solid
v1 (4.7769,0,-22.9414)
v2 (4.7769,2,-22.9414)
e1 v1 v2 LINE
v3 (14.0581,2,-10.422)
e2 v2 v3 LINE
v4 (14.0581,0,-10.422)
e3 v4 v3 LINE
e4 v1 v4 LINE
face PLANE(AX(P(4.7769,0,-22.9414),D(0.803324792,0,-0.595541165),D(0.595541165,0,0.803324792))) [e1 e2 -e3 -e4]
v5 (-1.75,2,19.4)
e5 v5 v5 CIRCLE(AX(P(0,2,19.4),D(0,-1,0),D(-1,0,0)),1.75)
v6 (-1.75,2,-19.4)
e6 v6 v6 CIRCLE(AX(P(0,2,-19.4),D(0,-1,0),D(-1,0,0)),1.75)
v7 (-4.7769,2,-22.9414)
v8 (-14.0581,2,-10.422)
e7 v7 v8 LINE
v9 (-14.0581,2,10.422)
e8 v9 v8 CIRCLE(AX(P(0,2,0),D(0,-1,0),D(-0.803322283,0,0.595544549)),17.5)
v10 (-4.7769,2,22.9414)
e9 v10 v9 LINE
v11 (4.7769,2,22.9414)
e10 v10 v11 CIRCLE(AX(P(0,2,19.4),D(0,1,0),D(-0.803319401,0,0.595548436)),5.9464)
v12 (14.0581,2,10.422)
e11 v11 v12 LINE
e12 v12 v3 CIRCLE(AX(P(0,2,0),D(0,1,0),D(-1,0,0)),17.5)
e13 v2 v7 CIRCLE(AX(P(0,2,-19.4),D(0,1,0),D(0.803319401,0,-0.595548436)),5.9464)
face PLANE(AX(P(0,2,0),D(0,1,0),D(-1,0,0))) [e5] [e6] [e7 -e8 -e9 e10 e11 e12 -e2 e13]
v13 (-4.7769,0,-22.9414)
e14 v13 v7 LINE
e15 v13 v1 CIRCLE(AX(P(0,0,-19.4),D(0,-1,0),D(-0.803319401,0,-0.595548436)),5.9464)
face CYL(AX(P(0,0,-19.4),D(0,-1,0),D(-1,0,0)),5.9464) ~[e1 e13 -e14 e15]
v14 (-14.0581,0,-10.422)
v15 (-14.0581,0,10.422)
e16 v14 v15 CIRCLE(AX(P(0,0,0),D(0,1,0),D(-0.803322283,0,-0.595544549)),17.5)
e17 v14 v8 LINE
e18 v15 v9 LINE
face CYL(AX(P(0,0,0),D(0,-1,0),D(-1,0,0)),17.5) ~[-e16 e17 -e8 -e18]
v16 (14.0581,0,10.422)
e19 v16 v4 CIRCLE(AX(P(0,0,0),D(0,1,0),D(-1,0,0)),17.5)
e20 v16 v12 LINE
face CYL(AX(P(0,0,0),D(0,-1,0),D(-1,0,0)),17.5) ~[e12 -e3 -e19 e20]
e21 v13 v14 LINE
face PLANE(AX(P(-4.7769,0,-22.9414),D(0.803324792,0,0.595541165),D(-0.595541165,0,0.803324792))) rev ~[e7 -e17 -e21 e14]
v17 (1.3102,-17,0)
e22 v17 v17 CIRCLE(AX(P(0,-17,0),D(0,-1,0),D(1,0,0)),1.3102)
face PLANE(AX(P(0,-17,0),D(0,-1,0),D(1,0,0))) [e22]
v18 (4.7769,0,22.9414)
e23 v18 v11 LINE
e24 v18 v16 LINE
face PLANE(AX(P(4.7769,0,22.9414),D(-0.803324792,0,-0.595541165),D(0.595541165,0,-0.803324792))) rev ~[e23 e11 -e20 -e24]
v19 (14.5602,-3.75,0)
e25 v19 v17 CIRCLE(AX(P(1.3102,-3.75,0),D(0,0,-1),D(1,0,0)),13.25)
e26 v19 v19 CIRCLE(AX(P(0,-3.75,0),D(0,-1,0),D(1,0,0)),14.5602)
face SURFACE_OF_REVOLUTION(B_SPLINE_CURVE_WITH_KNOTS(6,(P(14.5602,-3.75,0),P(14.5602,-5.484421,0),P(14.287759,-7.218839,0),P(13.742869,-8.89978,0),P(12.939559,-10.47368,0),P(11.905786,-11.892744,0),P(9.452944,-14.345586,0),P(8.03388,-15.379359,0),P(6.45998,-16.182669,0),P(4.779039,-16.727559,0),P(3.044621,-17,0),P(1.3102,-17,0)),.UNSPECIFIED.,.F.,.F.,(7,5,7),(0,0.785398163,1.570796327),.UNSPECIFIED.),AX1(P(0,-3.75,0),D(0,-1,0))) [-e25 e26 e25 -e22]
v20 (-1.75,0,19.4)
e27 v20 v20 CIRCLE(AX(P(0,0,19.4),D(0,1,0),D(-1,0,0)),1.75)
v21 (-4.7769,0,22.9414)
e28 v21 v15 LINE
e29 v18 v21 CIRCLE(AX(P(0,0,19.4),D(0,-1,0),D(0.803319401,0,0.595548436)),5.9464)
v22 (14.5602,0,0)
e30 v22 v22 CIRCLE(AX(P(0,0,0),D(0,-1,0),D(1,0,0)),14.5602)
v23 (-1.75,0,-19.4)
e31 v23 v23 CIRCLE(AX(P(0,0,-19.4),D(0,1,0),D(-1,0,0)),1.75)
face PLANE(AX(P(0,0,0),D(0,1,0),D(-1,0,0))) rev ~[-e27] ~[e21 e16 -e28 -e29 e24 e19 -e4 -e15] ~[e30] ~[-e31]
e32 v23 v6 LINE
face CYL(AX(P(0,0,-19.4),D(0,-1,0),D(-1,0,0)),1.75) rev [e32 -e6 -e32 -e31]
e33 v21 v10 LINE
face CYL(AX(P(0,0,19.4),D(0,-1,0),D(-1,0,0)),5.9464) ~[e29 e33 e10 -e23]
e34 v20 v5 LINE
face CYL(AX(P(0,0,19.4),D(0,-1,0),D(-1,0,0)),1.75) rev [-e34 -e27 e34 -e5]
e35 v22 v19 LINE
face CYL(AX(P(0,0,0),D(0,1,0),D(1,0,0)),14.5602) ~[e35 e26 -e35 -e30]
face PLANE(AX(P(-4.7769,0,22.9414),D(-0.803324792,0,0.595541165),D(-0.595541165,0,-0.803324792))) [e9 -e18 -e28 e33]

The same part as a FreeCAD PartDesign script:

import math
import FreeCAD as App
import Part
import Sketcher
Q = App.Units.Quantity


def edges_at(feature, points):
    """Names of the edges that pass closest to the given points."""
    edges = feature.Shape.Edges
    near = lambda p: min(range(len(edges)), key=lambda i: edges[i].distToShape(Part.Vertex(*p))[0])
    return sorted({f"Edge{near(p) + 1}" for p in points})

doc = App.newDocument("Part")
body = doc.addObject("PartDesign::Body", "Body")

# Sketch on XZ plane
sketch1 = body.newObject("Sketcher::SketchObject", "Sketch")
sketch1.AttachmentSupport = (doc.getObject("XZ_Plane"), [""])
sketch1.MapMode = "FlatFace"
sketch1.addGeometry(Part.ArcOfCircle(Part.Circle(App.Vector(0, 0, 0), App.Vector(0, 0, 1), 17.5), math.radians(143.448538), math.radians(216.551462)), False)
sketch1.addGeometry(Part.LineSegment(App.Vector(-14.0581, 10.422, 0), App.Vector(-4.7769, 22.9414, 0)), False)
sketch1.addGeometry(Part.ArcOfCircle(Part.Circle(App.Vector(0, 19.4, 0), App.Vector(0, 0, 1), 5.9464), math.radians(36.551739), math.radians(143.448261)), False)
sketch1.addGeometry(Part.LineSegment(App.Vector(4.7769, 22.9414, 0), App.Vector(14.0581, 10.422, 0)), False)
sketch1.addGeometry(Part.ArcOfCircle(Part.Circle(App.Vector(0, 0, 0), App.Vector(0, 0, 1), 17.5), math.radians(-36.551462), math.radians(36.551462)), False)
sketch1.addGeometry(Part.LineSegment(App.Vector(14.0581, -10.422, 0), App.Vector(4.7769, -22.9414, 0)), False)
sketch1.addGeometry(Part.ArcOfCircle(Part.Circle(App.Vector(0, -19.4, 0), App.Vector(0, 0, 1), 5.9464), math.radians(-143.448261), math.radians(-36.551739)), False)
sketch1.addGeometry(Part.LineSegment(App.Vector(-4.7769, -22.9414, 0), App.Vector(-14.0581, -10.422, 0)), False)
sketch1.addGeometry(Part.Circle(App.Vector(0, -19.4, 0), App.Vector(0, 0, 1), 1.75), False)
sketch1.addGeometry(Part.Circle(App.Vector(0, 19.4, 0), App.Vector(0, 0, 1), 1.75), False)
sketch1.addConstraint(Sketcher.Constraint("Tangent", 0, 1, 1, 1))
sketch1.addConstraint(Sketcher.Constraint("Tangent", 1, 2, 2, 2))
sketch1.addConstraint(Sketcher.Constraint("Tangent", 2, 1, 3, 1))
sketch1.addConstraint(Sketcher.Constraint("Tangent", 3, 2, 4, 2))
sketch1.addConstraint(Sketcher.Constraint("Tangent", 4, 1, 5, 1))
sketch1.addConstraint(Sketcher.Constraint("Tangent", 5, 2, 6, 2))
sketch1.addConstraint(Sketcher.Constraint("Tangent", 6, 1, 7, 1))
sketch1.addConstraint(Sketcher.Constraint("Tangent", 7, 2, 0, 2))
sketch1.addConstraint(Sketcher.Constraint("Coincident", 0, 3, -1, 1))
sketch1.addConstraint(Sketcher.Constraint("Coincident", 4, 3, -1, 1))
sketch1.addConstraint(Sketcher.Constraint("Coincident", 8, 3, 6, 3))
sketch1.addConstraint(Sketcher.Constraint("Coincident", 9, 3, 2, 3))
sketch1.addConstraint(Sketcher.Constraint("Equal", 0, 4))
sketch1.addConstraint(Sketcher.Constraint("Equal", 2, 6))
sketch1.addConstraint(Sketcher.Constraint("Equal", 8, 9))
sketch1.addConstraint(Sketcher.Constraint("Symmetric", 2, 3, 6, 3, -1, 1))
sketch1.addConstraint(Sketcher.Constraint("PointOnObject", 2, 3, -2))
sketch1.addConstraint(Sketcher.Constraint("Diameter", 8, Q("3.5 mm")))
sketch1.addConstraint(Sketcher.Constraint("Radius", 0, Q("17.5 mm")))
sketch1.addConstraint(Sketcher.Constraint("DistanceY", -1, 1, 2, 3, Q("19.4 mm")))
sketch1.addConstraint(Sketcher.Constraint("Radius", 2, Q("5.9464 mm")))
pad1 = body.newObject("PartDesign::Pad", "Pad")
pad1.Profile = sketch1
pad1.Length = 2
pad1.Reversed = True

# Sketch on XZ plane
sketch2 = body.newObject("Sketcher::SketchObject", "Sketch001")
sketch2.AttachmentSupport = (doc.getObject("XZ_Plane"), [""])
sketch2.MapMode = "FlatFace"
sketch2.addGeometry(Part.Circle(App.Vector(0, 0, 0), App.Vector(0, 0, 1), 14.5602), False)
sketch2.addConstraint(Sketcher.Constraint("Coincident", 0, 3, -1, 1))
sketch2.addConstraint(Sketcher.Constraint("Diameter", 0, Q("29.1204 mm")))
pad2 = body.newObject("PartDesign::Pad", "Pad001")
pad2.Profile = sketch2
pad2.Length = 17
doc.recompute()

fillet = body.newObject("PartDesign::Fillet", "Fillet")
fillet.Base = (pad2, edges_at(pad2, [(-14.56, -17, 0)]))
fillet.Radius = 13.25

doc.recompute()
